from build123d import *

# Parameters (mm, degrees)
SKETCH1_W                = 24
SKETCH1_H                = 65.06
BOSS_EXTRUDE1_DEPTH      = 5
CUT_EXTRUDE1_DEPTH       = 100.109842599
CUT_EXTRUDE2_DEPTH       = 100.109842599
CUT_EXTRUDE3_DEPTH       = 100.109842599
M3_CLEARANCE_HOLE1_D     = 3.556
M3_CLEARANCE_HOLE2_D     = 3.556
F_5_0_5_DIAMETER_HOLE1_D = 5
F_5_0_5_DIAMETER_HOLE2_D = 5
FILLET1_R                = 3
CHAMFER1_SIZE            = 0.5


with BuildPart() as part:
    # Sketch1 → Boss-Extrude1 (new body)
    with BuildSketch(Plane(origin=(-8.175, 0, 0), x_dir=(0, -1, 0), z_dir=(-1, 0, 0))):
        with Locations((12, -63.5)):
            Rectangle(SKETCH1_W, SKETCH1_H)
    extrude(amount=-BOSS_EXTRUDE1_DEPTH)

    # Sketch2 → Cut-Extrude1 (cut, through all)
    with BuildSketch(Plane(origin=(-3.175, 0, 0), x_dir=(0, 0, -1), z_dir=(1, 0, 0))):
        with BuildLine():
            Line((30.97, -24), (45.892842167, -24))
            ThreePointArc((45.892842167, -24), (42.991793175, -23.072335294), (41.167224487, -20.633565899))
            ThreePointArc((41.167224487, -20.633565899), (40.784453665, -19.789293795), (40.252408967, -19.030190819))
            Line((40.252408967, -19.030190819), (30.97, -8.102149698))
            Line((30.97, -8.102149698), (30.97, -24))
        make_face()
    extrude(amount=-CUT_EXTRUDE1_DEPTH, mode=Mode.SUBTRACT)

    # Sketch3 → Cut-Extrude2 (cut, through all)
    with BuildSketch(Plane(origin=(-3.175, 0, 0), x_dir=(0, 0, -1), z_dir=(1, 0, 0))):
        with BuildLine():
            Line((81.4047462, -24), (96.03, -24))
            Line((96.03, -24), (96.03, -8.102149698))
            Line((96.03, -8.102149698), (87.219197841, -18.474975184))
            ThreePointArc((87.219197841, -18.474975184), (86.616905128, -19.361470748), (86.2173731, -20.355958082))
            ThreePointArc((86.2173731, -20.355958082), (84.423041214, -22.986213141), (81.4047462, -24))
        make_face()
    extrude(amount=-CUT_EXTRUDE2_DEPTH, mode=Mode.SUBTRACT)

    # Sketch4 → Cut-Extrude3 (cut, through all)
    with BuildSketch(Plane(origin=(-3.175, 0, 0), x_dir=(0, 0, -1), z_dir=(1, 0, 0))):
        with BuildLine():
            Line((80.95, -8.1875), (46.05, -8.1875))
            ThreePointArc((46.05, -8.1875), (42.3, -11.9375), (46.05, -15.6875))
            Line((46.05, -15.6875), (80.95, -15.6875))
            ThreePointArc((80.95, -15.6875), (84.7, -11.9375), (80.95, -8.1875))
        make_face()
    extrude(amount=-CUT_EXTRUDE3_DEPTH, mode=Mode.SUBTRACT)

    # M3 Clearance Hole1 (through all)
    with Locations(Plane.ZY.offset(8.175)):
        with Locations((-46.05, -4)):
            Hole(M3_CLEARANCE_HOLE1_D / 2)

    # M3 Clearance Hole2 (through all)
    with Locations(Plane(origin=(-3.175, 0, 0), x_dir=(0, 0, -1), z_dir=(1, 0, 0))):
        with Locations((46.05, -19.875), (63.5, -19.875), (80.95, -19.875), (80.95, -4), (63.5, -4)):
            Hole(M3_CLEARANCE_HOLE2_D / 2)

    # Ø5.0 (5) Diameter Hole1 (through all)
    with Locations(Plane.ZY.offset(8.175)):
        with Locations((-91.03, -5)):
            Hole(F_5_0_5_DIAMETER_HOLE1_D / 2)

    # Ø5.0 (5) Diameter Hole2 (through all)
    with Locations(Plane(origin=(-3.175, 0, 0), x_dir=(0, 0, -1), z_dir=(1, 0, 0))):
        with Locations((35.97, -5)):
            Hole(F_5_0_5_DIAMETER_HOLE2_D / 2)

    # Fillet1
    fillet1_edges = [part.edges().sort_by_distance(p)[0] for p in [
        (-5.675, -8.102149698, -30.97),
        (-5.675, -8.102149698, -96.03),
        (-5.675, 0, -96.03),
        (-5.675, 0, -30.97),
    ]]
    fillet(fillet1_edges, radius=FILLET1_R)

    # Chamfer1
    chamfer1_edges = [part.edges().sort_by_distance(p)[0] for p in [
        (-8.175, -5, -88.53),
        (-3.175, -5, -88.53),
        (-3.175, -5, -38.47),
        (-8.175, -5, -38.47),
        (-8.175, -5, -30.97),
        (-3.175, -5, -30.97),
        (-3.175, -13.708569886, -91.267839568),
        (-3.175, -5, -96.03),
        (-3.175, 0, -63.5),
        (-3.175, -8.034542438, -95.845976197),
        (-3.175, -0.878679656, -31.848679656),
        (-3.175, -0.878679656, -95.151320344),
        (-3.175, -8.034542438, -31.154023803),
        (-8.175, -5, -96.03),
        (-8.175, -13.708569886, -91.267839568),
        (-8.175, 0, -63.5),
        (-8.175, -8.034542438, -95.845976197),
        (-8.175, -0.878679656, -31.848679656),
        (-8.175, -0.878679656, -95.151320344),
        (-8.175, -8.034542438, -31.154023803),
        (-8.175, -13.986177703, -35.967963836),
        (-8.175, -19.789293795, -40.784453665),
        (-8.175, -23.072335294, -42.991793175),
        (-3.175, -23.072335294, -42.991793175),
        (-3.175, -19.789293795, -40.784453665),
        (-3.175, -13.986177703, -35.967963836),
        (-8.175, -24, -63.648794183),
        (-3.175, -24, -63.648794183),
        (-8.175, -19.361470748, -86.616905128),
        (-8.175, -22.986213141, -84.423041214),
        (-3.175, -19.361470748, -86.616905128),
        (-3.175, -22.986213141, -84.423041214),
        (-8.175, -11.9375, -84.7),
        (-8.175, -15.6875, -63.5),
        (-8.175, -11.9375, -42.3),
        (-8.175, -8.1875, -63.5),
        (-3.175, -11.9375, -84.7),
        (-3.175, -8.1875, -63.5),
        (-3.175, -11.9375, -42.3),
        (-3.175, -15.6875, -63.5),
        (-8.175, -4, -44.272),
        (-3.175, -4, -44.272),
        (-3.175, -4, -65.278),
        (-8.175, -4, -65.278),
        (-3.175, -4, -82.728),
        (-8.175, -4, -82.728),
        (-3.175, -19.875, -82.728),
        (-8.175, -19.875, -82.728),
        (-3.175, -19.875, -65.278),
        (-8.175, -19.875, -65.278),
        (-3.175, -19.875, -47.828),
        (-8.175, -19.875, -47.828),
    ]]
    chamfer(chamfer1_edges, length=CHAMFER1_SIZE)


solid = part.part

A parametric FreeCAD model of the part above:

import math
import FreeCAD as App
import Part
import Sketcher
Q = App.Units.Quantity


def edges_at(feature, points):
    """Names of the edges that pass closest to the given points."""
    edges = feature.Shape.Edges
    near = lambda p: min(range(len(edges)), key=lambda i: edges[i].distToShape(Part.Vertex(*p))[0])
    return sorted({f"Edge{near(p) + 1}" for p in points})

doc = App.newDocument("Part")
body = doc.addObject("PartDesign::Body", "Body")

# Sketch on YZ plane
sketch1 = body.newObject("Sketcher::SketchObject", "Sketch")
sketch1.AttachmentSupport = (doc.getObject("YZ_Plane"), [""])
sketch1.MapMode = "FlatFace"
sketch1.AttachmentOffset = App.Placement(App.Vector(0, 0, -8.175), App.Rotation())
sketch1.addGeometry(Part.LineSegment(App.Vector(0, -31, 0), App.Vector(0, -96, 0)), False)
sketch1.addGeometry(Part.LineSegment(App.Vector(0, -96, 0), App.Vector(-24, -96, 0)), False)
sketch1.addGeometry(Part.LineSegment(App.Vector(-24, -96, 0), App.Vector(-24, -31, 0)), False)
sketch1.addGeometry(Part.LineSegment(App.Vector(-24, -31, 0), App.Vector(0, -31, 0)), False)
sketch1.addConstraint(Sketcher.Constraint("Coincident", 0, 2, 1, 1))
sketch1.addConstraint(Sketcher.Constraint("Coincident", 1, 2, 2, 1))
sketch1.addConstraint(Sketcher.Constraint("Coincident", 2, 2, 3, 1))
sketch1.addConstraint(Sketcher.Constraint("Coincident", 3, 2, 0, 1))
sketch1.addConstraint(Sketcher.Constraint("Vertical", 0))
sketch1.addConstraint(Sketcher.Constraint("Horizontal", 1))
sketch1.addConstraint(Sketcher.Constraint("Vertical", 2))
sketch1.addConstraint(Sketcher.Constraint("Horizontal", 3))
sketch1.addConstraint(Sketcher.Constraint("PointOnObject", 0, 2, -2))
sketch1.addConstraint(Sketcher.Constraint("DistanceX", 1, 2, 1, 1, Q("24 mm")))
sketch1.addConstraint(Sketcher.Constraint("DistanceY", 0, 2, 0, 1, Q("65.06 mm")))
sketch1.addConstraint(Sketcher.Constraint("DistanceY", 0, 2, -1, 1, Q("96.03 mm")))
pad1 = body.newObject("PartDesign::Pad", "Pad")
pad1.Profile = sketch1
pad1.Length = 5

# Sketch on YZ plane
sketch2 = body.newObject("Sketcher::SketchObject", "Sketch001")
sketch2.AttachmentSupport = (doc.getObject("YZ_Plane"), [""])
sketch2.MapMode = "FlatFace"
sketch2.AttachmentOffset = App.Placement(App.Vector(0, 0, -3.175), App.Rotation())
sketch2.addGeometry(Part.LineSegment(App.Vector(-24, -31, 0), App.Vector(-24, -45.9, 0)), False)
sketch2.addGeometry(Part.ArcOfCircle(Part.Circle(App.Vector(-19, -45.9, 0), App.Vector(0, 0, 1), 5), math.radians(109), math.radians(180)), False)
sketch2.addGeometry(Part.ArcOfCircle(Part.Circle(App.Vector(-22.3, -36.4, 0), App.Vector(0, 0, 1), 5), math.radians(-71), math.radians(-50)), False)
sketch2.addGeometry(Part.LineSegment(App.Vector(-19, -40.3, 0), App.Vector(-8.1, -31, 0)), False)
sketch2.addGeometry(Part.LineSegment(App.Vector(-8.1, -31, 0), App.Vector(-24, -31, 0)), False)
sketch2.addConstraint(Sketcher.Constraint("Tangent", 0, 2, 1, 2))
sketch2.addConstraint(Sketcher.Constraint("Tangent", 1, 1, 2, 1))
sketch2.addConstraint(Sketcher.Constraint("Tangent", 2, 2, 3, 1))
sketch2.addConstraint(Sketcher.Constraint("Coincident", 3, 2, 4, 1))
sketch2.addConstraint(Sketcher.Constraint("Coincident", 4, 2, 0, 1))
sketch2.addConstraint(Sketcher.Constraint("Vertical", 0))
sketch2.addConstraint(Sketcher.Constraint("Horizontal", 4))
sketch2.addConstraint(Sketcher.Constraint("Equal", 1, 2))
sketch2.addConstraint(Sketcher.Constraint("Radius", 1, Q("5 mm")))
sketch2.addConstraint(Sketcher.Constraint("DistanceX", 1, 3, -1, 1, Q("19 mm")))
sketch2.addConstraint(Sketcher.Constraint("DistanceY", 3, 2, -1, 1, Q("30.97 mm")))
sketch2.addConstraint(Sketcher.Constraint("DistanceX", 4, 2, 4, 1, Q("15.89785 mm")))
sketch2.addConstraint(Sketcher.Constraint("DistanceY", 0, 2, 0, 1, Q("14.922842 mm")))
sketch2.addConstraint(Sketcher.Constraint("DistanceX", 2, 3, -1, 1, Q("22.267132 mm")))
pocket1 = body.newObject("PartDesign::Pocket", "Pocket")
pocket1.Profile = sketch2
pocket1.Type = "ThroughAll"

# Sketch on YZ plane
sketch3 = body.newObject("Sketcher::SketchObject", "Sketch002")
sketch3.AttachmentSupport = (doc.getObject("YZ_Plane"), [""])
sketch3.MapMode = "FlatFace"
sketch3.AttachmentOffset = App.Placement(App.Vector(0, 0, -3.175), App.Rotation())
sketch3.addGeometry(Part.LineSegment(App.Vector(-24, -81.4, 0), App.Vector(-24, -96, 0)), False)
sketch3.addGeometry(Part.LineSegment(App.Vector(-24, -96, 0), App.Vector(-8.1, -96, 0)), False)
sketch3.addGeometry(Part.LineSegment(App.Vector(-8.1, -96, 0), App.Vector(-18.5, -87.2, 0)), False)
sketch3.addGeometry(Part.ArcOfCircle(Part.Circle(App.Vector(-21.7, -91, 0), App.Vector(0, 0, 1), 5), math.radians(50), math.radians(74)), False)
sketch3.addGeometry(Part.ArcOfCircle(Part.Circle(App.Vector(-19, -81.4, 0), App.Vector(0, 0, 1), 5), math.radians(-180), math.radians(-106)), False)
sketch3.addConstraint(Sketcher.Constraint("Coincident", 0, 2, 1, 1))
sketch3.addConstraint(Sketcher.Constraint("Coincident", 1, 2, 2, 1))
sketch3.addConstraint(Sketcher.Constraint("Tangent", 2, 2, 3, 1))
sketch3.addConstraint(Sketcher.Constraint("Tangent", 3, 2, 4, 2))
sketch3.addConstraint(Sketcher.Constraint("Tangent", 4, 1, 0, 1))
sketch3.addConstraint(Sketcher.Constraint("Vertical", 0))
sketch3.addConstraint(Sketcher.Constraint("Horizontal", 1))
sketch3.addConstraint(Sketcher.Constraint("Equal", 3, 4))
sketch3.addConstraint(Sketcher.Constraint("Radius", 3, Q("5 mm")))
sketch3.addConstraint(Sketcher.Constraint("DistanceX", 4, 3, -1, 1, Q("19 mm")))
sketch3.addConstraint(Sketcher.Constraint("DistanceY", 0, 2, 3, 3, Q("5 mm")))
sketch3.addConstraint(Sketcher.Constraint("DistanceY", 3, 3, -1, 1, Q("91.03 mm")))
sketch3.addConstraint(Sketcher.Constraint("DistanceX", 1, 1, 1, 2, Q("15.89785 mm")))
sketch3.addConstraint(Sketcher.Constraint("DistanceY", 0, 2, 0, 1, Q("14.625254 mm")))
pocket2 = body.newObject("PartDesign::Pocket", "Pocket001")
pocket2.Profile = sketch3
pocket2.Type = "ThroughAll"

# Sketch on YZ plane
sketch4 = body.newObject("Sketcher::SketchObject", "Sketch003")
sketch4.AttachmentSupport = (doc.getObject("YZ_Plane"), [""])
sketch4.MapMode = "FlatFace"
sketch4.AttachmentOffset = App.Placement(App.Vector(0, 0, -3.175), App.Rotation())
sketch4.addGeometry(Part.LineSegment(App.Vector(-8.2, -81, 0), App.Vector(-8.2, -46, 0)), False)
sketch4.addGeometry(Part.ArcOfCircle(Part.Circle(App.Vector(-11.9, -46, 0), App.Vector(0, 0, 1), 3.8), math.radians(0), math.radians(180)), False)
sketch4.addGeometry(Part.LineSegment(App.Vector(-15.7, -46, 0), App.Vector(-15.7, -81, 0)), False)
sketch4.addGeometry(Part.ArcOfCircle(Part.Circle(App.Vector(-11.9, -81, 0), App.Vector(0, 0, 1), 3.8), math.radians(180), math.radians(360)), False)
sketch4.addConstraint(Sketcher.Constraint("Tangent", 0, 2, 1, 1))
sketch4.addConstraint(Sketcher.Constraint("Tangent", 1, 2, 2, 1))
sketch4.addConstraint(Sketcher.Constraint("Tangent", 2, 2, 3, 1))
sketch4.addConstraint(Sketcher.Constraint("Tangent", 3, 2, 0, 1))
sketch4.addConstraint(Sketcher.Constraint("Vertical", 0))
sketch4.addConstraint(Sketcher.Constraint("Vertical", 2))
sketch4.addConstraint(Sketcher.Constraint("Radius", 1, Q("3.75 mm")))
sketch4.addConstraint(Sketcher.Constraint("DistanceY", 0, 1, 0, 2, Q("34.9 mm")))
sketch4.addConstraint(Sketcher.Constraint("DistanceY", 1, 3, -1, 1, Q("46.05 mm")))
sketch4.addConstraint(Sketcher.Constraint("DistanceX", 1, 3, -1, 1, Q("11.9375 mm")))
pocket3 = body.newObject("PartDesign::Pocket", "Pocket002")
pocket3.Profile = sketch4
pocket3.Type = "ThroughAll"

# Sketch on YZ plane
sketch5 = body.newObject("Sketcher::SketchObject", "Sketch004")
sketch5.AttachmentSupport = (doc.getObject("YZ_Plane"), [""])
sketch5.MapMode = "FlatFace"
sketch5.AttachmentOffset = App.Placement(App.Vector(0, 0, -8.175), App.Rotation())
sketch5.addGeometry(Part.Circle(App.Vector(-4, -46, 0), App.Vector(0, 0, 1), 1.8), False)
sketch5.addConstraint(Sketcher.Constraint("Diameter", 0, Q("3.556 mm")))
sketch5.addConstraint(Sketcher.Constraint("DistanceX", 0, 3, -1, 1, Q("4 mm")))
sketch5.addConstraint(Sketcher.Constraint("DistanceY", 0, 3, -1, 1, Q("46.05 mm")))
doc.recompute()
hole = body.newObject("PartDesign::Hole", "Hole")
hole.Profile = sketch5
hole.ThreadType = "None"
hole.Diameter = 3.556
hole.DepthType = "ThroughAll"
hole.Reversed = True

# Sketch on YZ plane
sketch6 = body.newObject("Sketcher::SketchObject", "Sketch005")
sketch6.AttachmentSupport = (doc.getObject("YZ_Plane"), [""])
sketch6.MapMode = "FlatFace"
sketch6.AttachmentOffset = App.Placement(App.Vector(0, 0, -3.175), App.Rotation())
sketch6.addGeometry(Part.Circle(App.Vector(-19.9, -46, 0), App.Vector(0, 0, 1), 1.8), False)
sketch6.addGeometry(Part.Circle(App.Vector(-19.9, -63.5, 0), App.Vector(0, 0, 1), 1.8), False)
sketch6.addGeometry(Part.Circle(App.Vector(-19.9, -81, 0), App.Vector(0, 0, 1), 1.8), False)
sketch6.addGeometry(Part.Circle(App.Vector(-4, -81, 0), App.Vector(0, 0, 1), 1.8), False)
sketch6.addGeometry(Part.Circle(App.Vector(-4, -63.5, 0), App.Vector(0, 0, 1), 1.8), False)
sketch6.addConstraint(Sketcher.Constraint("Equal", 0, 1))
sketch6.addConstraint(Sketcher.Constraint("Equal", 1, 2))
sketch6.addConstraint(Sketcher.Constraint("Equal", 2, 3))
sketch6.addConstraint(Sketcher.Constraint("Equal", 3, 4))
sketch6.addConstraint(Sketcher.Constraint("Horizontal", 2, 3, 3, 3))
sketch6.addConstraint(Sketcher.Constraint("Horizontal", 1, 3, 4, 3))
sketch6.addConstraint(Sketcher.Constraint("Vertical", 0, 3, 1, 3))
sketch6.addConstraint(Sketcher.Constraint("Vertical", 1, 3, 2, 3))
sketch6.addConstraint(Sketcher.Constraint("Vertical", 3, 3, 4, 3))
sketch6.addConstraint(Sketcher.Constraint("Diameter", 0, Q("3.556 mm")))
sketch6.addConstraint(Sketcher.Constraint("DistanceX", 3, 3, -1, 1, Q("4 mm")))
sketch6.addConstraint(Sketcher.Constraint("DistanceY", 1, 3, -1, 1, Q("63.5 mm")))
sketch6.addConstraint(Sketcher.Constraint("DistanceY", 2, 3, 0, 3, Q("34.9 mm")))
sketch6.addConstraint(Sketcher.Constraint("DistanceY", 0, 3, -1, 1, Q("46.05 mm")))
sketch6.addConstraint(Sketcher.Constraint("DistanceX", 0, 3, -1, 1, Q("19.875 mm")))
doc.recompute()
hole2 = body.newObject("PartDesign::Hole", "Hole001")
hole2.Profile = sketch6
hole2.ThreadType = "None"
hole2.Diameter = 3.556
hole2.DepthType = "ThroughAll"

# Sketch on YZ plane
sketch7 = body.newObject("Sketcher::SketchObject", "Sketch006")
sketch7.AttachmentSupport = (doc.getObject("YZ_Plane"), [""])
sketch7.MapMode = "FlatFace"
sketch7.AttachmentOffset = App.Placement(App.Vector(0, 0, -8.175), App.Rotation())
sketch7.addGeometry(Part.Circle(App.Vector(-5, -91, 0), App.Vector(0, 0, 1), 2.5), False)
sketch7.addConstraint(Sketcher.Constraint("Diameter", 0, Q("5 mm")))
sketch7.addConstraint(Sketcher.Constraint("DistanceX", 0, 3, -1, 1, Q("5 mm")))
sketch7.addConstraint(Sketcher.Constraint("DistanceY", 0, 3, -1, 1, Q("91.03 mm")))
doc.recompute()
hole3 = body.newObject("PartDesign::Hole", "Hole002")
hole3.Profile = sketch7
hole3.ThreadType = "None"
hole3.Diameter = 5
hole3.DepthType = "ThroughAll"
hole3.Reversed = True

# Sketch on YZ plane
sketch8 = body.newObject("Sketcher::SketchObject", "Sketch007")
sketch8.AttachmentSupport = (doc.getObject("YZ_Plane"), [""])
sketch8.MapMode = "FlatFace"
sketch8.AttachmentOffset = App.Placement(App.Vector(0, 0, -3.175), App.Rotation())
sketch8.addGeometry(Part.Circle(App.Vector(-5, -36, 0), App.Vector(0, 0, 1), 2.5), False)
sketch8.addConstraint(Sketcher.Constraint("Diameter", 0, Q("5 mm")))
sketch8.addConstraint(Sketcher.Constraint("DistanceX", 0, 3, -1, 1, Q("5 mm")))
sketch8.addConstraint(Sketcher.Constraint("DistanceY", 0, 3, -1, 1, Q("35.97 mm")))
doc.recompute()
hole4 = body.newObject("PartDesign::Hole", "Hole003")
hole4.Profile = sketch8
hole4.ThreadType = "None"
hole4.Diameter = 5
hole4.DepthType = "ThroughAll"
doc.recompute()

fillet = body.newObject("PartDesign::Fillet", "Fillet")
fillet.Base = (hole4, edges_at(hole4, [
    (-5.675, -8.102, -30.97),
    (-5.675, -8.102, -96.03),
    (-5.675, 0, -96.03),
    (-5.675, 0, -30.97),
]))
fillet.Radius = 3
doc.recompute()

chamfer = body.newObject("PartDesign::Chamfer", "Chamfer")
chamfer.Base = (fillet, edges_at(fillet, [
    (-8.175, -5, -88.53),
    (-3.175, -5, -88.53),
    (-3.175, -5, -38.47),
    (-8.175, -5, -38.47),
    (-8.175, -5, -30.97),
    (-3.175, -5, -30.97),
    (-3.175, -13.709, -91.268),
    (-3.175, -5, -96.03),
    (-3.175, 0, -63.5),
    (-3.175, -8.035, -95.846),
    (-3.175, -0.879, -31.849),
    (-3.175, -0.879, -95.151),
    (-3.175, -8.035, -31.154),
    (-8.175, -5, -96.03),
    (-8.175, -13.709, -91.268),
    (-8.175, 0, -63.5),
    (-8.175, -8.035, -95.846),
    (-8.175, -0.879, -31.849),
    (-8.175, -0.879, -95.151),
    (-8.175, -8.035, -31.154),
    (-8.175, -13.986, -35.968),
    (-8.175, -19.789, -40.784),
    (-8.175, -23.072, -42.992),
    (-3.175, -23.072, -42.992),
    (-3.175, -19.789, -40.784),
    (-3.175, -13.986, -35.968),
    (-8.175, -24, -63.649),
    (-3.175, -24, -63.649),
    (-8.175, -19.361, -86.617),
    (-8.175, -22.986, -84.423),
    (-3.175, -19.361, -86.617),
    (-3.175, -22.986, -84.423),
    (-8.175, -11.938, -84.7),
    (-8.175, -15.688, -63.5),
    (-8.175, -11.938, -42.3),
    (-8.175, -8.188, -63.5),
    (-3.175, -11.938, -84.7),
    (-3.175, -8.188, -63.5),
    (-3.175, -11.938, -42.3),
    (-3.175, -15.688, -63.5),
    (-8.175, -4, -44.272),
    (-3.175, -4, -44.272),
    (-3.175, -4, -65.278),
    (-8.175, -4, -65.278),
    (-3.175, -4, -82.728),
    (-8.175, -4, -82.728),
    (-3.175, -19.875, -82.728),
    (-8.175, -19.875, -82.728),
    (-3.175, -19.875, -65.278),
    (-8.175, -19.875, -65.278),
    (-3.175, -19.875, -47.828),
    (-8.175, -19.875, -47.828),
]))
chamfer.Size = 0.5

doc.recompute()
